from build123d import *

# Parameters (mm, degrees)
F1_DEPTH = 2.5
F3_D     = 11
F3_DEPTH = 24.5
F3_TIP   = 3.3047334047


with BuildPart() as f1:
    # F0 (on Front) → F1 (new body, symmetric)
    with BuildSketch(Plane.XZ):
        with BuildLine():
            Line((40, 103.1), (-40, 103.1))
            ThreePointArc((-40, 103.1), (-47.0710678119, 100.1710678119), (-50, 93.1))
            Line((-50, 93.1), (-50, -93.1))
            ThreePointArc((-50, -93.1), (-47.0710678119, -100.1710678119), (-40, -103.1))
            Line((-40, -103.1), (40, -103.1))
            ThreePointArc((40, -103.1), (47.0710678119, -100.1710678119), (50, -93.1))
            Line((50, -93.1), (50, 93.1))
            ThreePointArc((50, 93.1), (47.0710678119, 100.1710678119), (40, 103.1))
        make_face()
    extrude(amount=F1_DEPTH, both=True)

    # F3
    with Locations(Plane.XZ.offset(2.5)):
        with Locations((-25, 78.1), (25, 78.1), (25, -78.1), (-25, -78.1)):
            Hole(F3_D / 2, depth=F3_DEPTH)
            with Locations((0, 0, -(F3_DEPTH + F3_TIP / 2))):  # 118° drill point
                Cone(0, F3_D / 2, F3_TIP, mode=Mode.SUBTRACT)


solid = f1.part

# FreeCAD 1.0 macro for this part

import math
import FreeCAD as App
import Part
import Sketcher

doc = App.newDocument("Part")
body = doc.addObject("PartDesign::Body", "Body")

sketch1 = body.newObject("Sketcher::SketchObject", "Sketch")
sketch1.AttachmentSupport = (doc.getObject("XZ_Plane"), [""])
sketch1.MapMode = "FlatFace"
sketch1.addGeometry(Part.LineSegment(App.Vector(40, 103, 0), App.Vector(-40, 103, 0)), False)
sketch1.addGeometry(Part.ArcOfCircle(Part.Circle(App.Vector(-40, 93, 0), App.Vector(0, 0, 1), 10), math.radians(90), math.radians(180)), False)
sketch1.addGeometry(Part.LineSegment(App.Vector(-50, 93, 0), App.Vector(-50, -93, 0)), False)
sketch1.addGeometry(Part.ArcOfCircle(Part.Circle(App.Vector(-40, -93, 0), App.Vector(0, 0, 1), 10), math.radians(180), math.radians(270)), False)
sketch1.addGeometry(Part.LineSegment(App.Vector(-40, -103, 0), App.Vector(40, -103, 0)), False)
sketch1.addGeometry(Part.ArcOfCircle(Part.Circle(App.Vector(40, -93, 0), App.Vector(0, 0, 1), 10), math.radians(-90), math.radians(0)), False)
sketch1.addGeometry(Part.LineSegment(App.Vector(50, -93, 0), App.Vector(50, 93, 0)), False)
sketch1.addGeometry(Part.ArcOfCircle(Part.Circle(App.Vector(40, 93, 0), App.Vector(0, 0, 1), 10), math.radians(0), math.radians(90)), False)
sketch1.addConstraint(Sketcher.Constraint("Tangent", 0, 2, 1, 1))
sketch1.addConstraint(Sketcher.Constraint("Tangent", 1, 2, 2, 1))
sketch1.addConstraint(Sketcher.Constraint("Tangent", 2, 2, 3, 1))
sketch1.addConstraint(Sketcher.Constraint("Tangent", 3, 2, 4, 1))
sketch1.addConstraint(Sketcher.Constraint("Tangent", 4, 2, 5, 1))
sketch1.addConstraint(Sketcher.Constraint("Tangent", 5, 2, 6, 1))
sketch1.addConstraint(Sketcher.Constraint("Tangent", 6, 2, 7, 1))
sketch1.addConstraint(Sketcher.Constraint("Tangent", 7, 2, 0, 1))
sketch1.addConstraint(Sketcher.Constraint("Horizontal", 0))
sketch1.addConstraint(Sketcher.Constraint("Vertical", 2))
sketch1.addConstraint(Sketcher.Constraint("Horizontal", 4))
sketch1.addConstraint(Sketcher.Constraint("Vertical", 6))
sketch1.addConstraint(Sketcher.Constraint("Equal", 1, 3))
sketch1.addConstraint(Sketcher.Constraint("Equal", 3, 5))
sketch1.addConstraint(Sketcher.Constraint("Equal", 5, 7))
sketch1.addConstraint(Sketcher.Constraint("Symmetric", 1, 3, 5, 3, -1, 1))
sketch1.addConstraint(Sketcher.Constraint("Radius", 1, 10.0))
sketch1.addConstraint(Sketcher.Constraint("DistanceX", 0, 2, 0, 1, 80.0))
sketch1.addConstraint(Sketcher.Constraint("DistanceY", 2, 2, 2, 1, 186.2))
pad1 = body.newObject("PartDesign::Pad", "Pad")
pad1.Profile = sketch1
pad1.Length = 5
pad1.Midplane = True

sketch2 = body.newObject("Sketcher::SketchObject", "Sketch001")
sketch2.AttachmentSupport = (doc.getObject("XZ_Plane"), [""])
sketch2.MapMode = "FlatFace"
sketch2.AttachmentOffset = App.Placement(App.Vector(0, 0, 2.5), App.Rotation())
sketch2.addGeometry(Part.Circle(App.Vector(-25, 78, 0), App.Vector(0, 0, 1), 6), False)
sketch2.addGeometry(Part.Circle(App.Vector(25, 78, 0), App.Vector(0, 0, 1), 6), False)
sketch2.addGeometry(Part.Circle(App.Vector(25, -78, 0), App.Vector(0, 0, 1), 6), False)
sketch2.addGeometry(Part.Circle(App.Vector(-25, -78, 0), App.Vector(0, 0, 1), 6), False)
sketch2.addConstraint(Sketcher.Constraint("Equal", 0, 1))
sketch2.addConstraint(Sketcher.Constraint("Equal", 1, 2))
sketch2.addConstraint(Sketcher.Constraint("Equal", 2, 3))
sketch2.addConstraint(Sketcher.Constraint("Symmetric", 0, 3, 2, 3, -1, 1))
sketch2.addConstraint(Sketcher.Constraint("Symmetric", 1, 3, 3, 3, -1, 1))
sketch2.addConstraint(Sketcher.Constraint("Symmetric", 0, 3, 1, 3, -2))
sketch2.addConstraint(Sketcher.Constraint("Diameter", 0, 11.0))
sketch2.addConstraint(Sketcher.Constraint("DistanceX", 0, 3, -1, 1, 25.0))
sketch2.addConstraint(Sketcher.Constraint("DistanceY", -1, 1, 0, 3, 78.1))
doc.recompute()
hole = body.newObject("PartDesign::Hole", "Hole")
hole.Profile = sketch2
hole.ThreadType = "None"
hole.Diameter = 11
hole.DepthType = "Dimension"
hole.Depth = 24.5
hole.DrillPoint = "Angled"
hole.DrillPointAngle = 118

doc.recompute()
